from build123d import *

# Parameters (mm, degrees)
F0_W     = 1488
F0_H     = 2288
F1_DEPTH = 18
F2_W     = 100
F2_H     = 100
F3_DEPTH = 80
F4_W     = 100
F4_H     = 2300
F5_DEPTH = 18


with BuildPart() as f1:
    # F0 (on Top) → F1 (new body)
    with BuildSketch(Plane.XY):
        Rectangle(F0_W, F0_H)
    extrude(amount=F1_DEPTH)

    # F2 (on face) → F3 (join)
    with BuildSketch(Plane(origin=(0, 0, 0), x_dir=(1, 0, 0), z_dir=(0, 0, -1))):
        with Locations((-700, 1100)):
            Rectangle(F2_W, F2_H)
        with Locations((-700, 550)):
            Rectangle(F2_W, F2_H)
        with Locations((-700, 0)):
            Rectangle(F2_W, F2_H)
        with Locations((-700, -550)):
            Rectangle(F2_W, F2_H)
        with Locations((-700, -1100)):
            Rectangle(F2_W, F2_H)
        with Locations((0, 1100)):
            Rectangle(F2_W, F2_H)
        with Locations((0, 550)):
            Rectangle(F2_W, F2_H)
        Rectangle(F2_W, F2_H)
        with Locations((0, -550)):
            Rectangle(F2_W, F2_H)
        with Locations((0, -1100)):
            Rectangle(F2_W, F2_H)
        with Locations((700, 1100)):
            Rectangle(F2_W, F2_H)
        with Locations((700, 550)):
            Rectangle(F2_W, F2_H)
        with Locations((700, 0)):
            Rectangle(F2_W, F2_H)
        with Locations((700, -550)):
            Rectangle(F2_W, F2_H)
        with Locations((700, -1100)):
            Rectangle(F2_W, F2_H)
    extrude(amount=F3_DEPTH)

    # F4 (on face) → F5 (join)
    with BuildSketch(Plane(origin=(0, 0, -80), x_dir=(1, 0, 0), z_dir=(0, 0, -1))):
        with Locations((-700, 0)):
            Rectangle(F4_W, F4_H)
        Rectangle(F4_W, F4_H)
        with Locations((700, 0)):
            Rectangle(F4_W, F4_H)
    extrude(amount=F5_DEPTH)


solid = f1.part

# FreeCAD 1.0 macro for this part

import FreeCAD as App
import Part
import Sketcher


def add_polygon(sketch, points):
    """Adds a closed chain of lines whose ends are joined by coincident constraints."""
    first, n = sketch.GeometryCount, len(points)
    for a, b in zip(points, points[1:] + points[:1]):
        sketch.addGeometry(Part.LineSegment(App.Vector(*a, 0), App.Vector(*b, 0)), False)
    for i in range(n):
        sketch.addConstraint(Sketcher.Constraint("Coincident", first + i, 2, first + (i + 1) % n, 1))

doc = App.newDocument("Part")
body = doc.addObject("PartDesign::Body", "Body")

# Sketch on XY plane
sketch1 = body.newObject("Sketcher::SketchObject", "Sketch")
sketch1.AttachmentSupport = (doc.getObject("XY_Plane"), [""])
sketch1.MapMode = "FlatFace"
add_polygon(sketch1, [(-744, 1144), (-744, -1144), (744, -1144), (744, 1144)])  # lines 0-3
sketch1.addConstraint(Sketcher.Constraint("Vertical", 0))
sketch1.addConstraint(Sketcher.Constraint("Horizontal", 1))
sketch1.addConstraint(Sketcher.Constraint("Vertical", 2))
sketch1.addConstraint(Sketcher.Constraint("Horizontal", 3))
sketch1.addConstraint(Sketcher.Constraint("Symmetric", 0, 2, 2, 2, -1, 1))
sketch1.addConstraint(Sketcher.Constraint("DistanceX", 1, 1, 1, 2, 1488.0))
sketch1.addConstraint(Sketcher.Constraint("DistanceY", 0, 2, 0, 1, 2288.0))
pad1 = body.newObject("PartDesign::Pad", "Pad")
pad1.Profile = sketch1
pad1.Length = 18

# Sketch on XY plane
sketch2 = body.newObject("Sketcher::SketchObject", "Sketch001")
sketch2.AttachmentSupport = (doc.getObject("XY_Plane"), [""])
sketch2.MapMode = "FlatFace"
add_polygon(sketch2, [(-750, -1150), (-750, -1050), (-650, -1050), (-650, -1150)])  # lines 0-3
add_polygon(sketch2, [(-750, -600), (-750, -500), (-650, -500), (-650, -600)])  # lines 4-7
add_polygon(sketch2, [(-750, -50), (-750, 50), (-650, 50), (-650, -50)])  # lines 8-11
add_polygon(sketch2, [(-750, 500), (-750, 600), (-650, 600), (-650, 500)])  # lines 12-15
add_polygon(sketch2, [(-750, 1050), (-750, 1150), (-650, 1150), (-650, 1050)])  # lines 16-19
add_polygon(sketch2, [(-50, -1150), (-50, -1050), (50, -1050), (50, -1150)])  # lines 20-23
add_polygon(sketch2, [(-50, -600), (-50, -500), (50, -500), (50, -600)])  # lines 24-27
add_polygon(sketch2, [(-50, -50), (-50, 50), (50, 50), (50, -50)])  # lines 28-31
add_polygon(sketch2, [(-50, 500), (-50, 600), (50, 600), (50, 500)])  # lines 32-35
add_polygon(sketch2, [(-50, 1050), (-50, 1150), (50, 1150), (50, 1050)])  # lines 36-39
add_polygon(sketch2, [(650, -1150), (650, -1050), (750, -1050), (750, -1150)])  # lines 40-43
add_polygon(sketch2, [(650, -600), (650, -500), (750, -500), (750, -600)])  # lines 44-47
add_polygon(sketch2, [(650, -50), (650, 50), (750, 50), (750, -50)])  # lines 48-51
add_polygon(sketch2, [(650, 500), (650, 600), (750, 600), (750, 500)])  # lines 52-55
add_polygon(sketch2, [(650, 1050), (650, 1150), (750, 1150), (750, 1050)])  # lines 56-59
sketch2.addConstraint(Sketcher.Constraint("Vertical", 0))
sketch2.addConstraint(Sketcher.Constraint("Horizontal", 1))
sketch2.addConstraint(Sketcher.Constraint("Vertical", 2))
sketch2.addConstraint(Sketcher.Constraint("Horizontal", 3))
sketch2.addConstraint(Sketcher.Constraint("Vertical", 4))
sketch2.addConstraint(Sketcher.Constraint("Horizontal", 5))
sketch2.addConstraint(Sketcher.Constraint("Vertical", 6))
sketch2.addConstraint(Sketcher.Constraint("Horizontal", 7))
sketch2.addConstraint(Sketcher.Constraint("Vertical", 8))
sketch2.addConstraint(Sketcher.Constraint("Horizontal", 9))
sketch2.addConstraint(Sketcher.Constraint("Vertical", 10))
sketch2.addConstraint(Sketcher.Constraint("Horizontal", 11))
sketch2.addConstraint(Sketcher.Constraint("Vertical", 12))
sketch2.addConstraint(Sketcher.Constraint("Horizontal", 13))
sketch2.addConstraint(Sketcher.Constraint("Vertical", 14))
sketch2.addConstraint(Sketcher.Constraint("Horizontal", 15))
sketch2.addConstraint(Sketcher.Constraint("Vertical", 16))
sketch2.addConstraint(Sketcher.Constraint("Horizontal", 17))
sketch2.addConstraint(Sketcher.Constraint("Vertical", 18))
sketch2.addConstraint(Sketcher.Constraint("Horizontal", 19))
sketch2.addConstraint(Sketcher.Constraint("Vertical", 20))
sketch2.addConstraint(Sketcher.Constraint("Horizontal", 21))
sketch2.addConstraint(Sketcher.Constraint("Vertical", 22))
sketch2.addConstraint(Sketcher.Constraint("Horizontal", 23))
sketch2.addConstraint(Sketcher.Constraint("Vertical", 24))
sketch2.addConstraint(Sketcher.Constraint("Horizontal", 25))
sketch2.addConstraint(Sketcher.Constraint("Vertical", 26))
sketch2.addConstraint(Sketcher.Constraint("Horizontal", 27))
sketch2.addConstraint(Sketcher.Constraint("Vertical", 28))
sketch2.addConstraint(Sketcher.Constraint("Horizontal", 29))
sketch2.addConstraint(Sketcher.Constraint("Vertical", 30))
sketch2.addConstraint(Sketcher.Constraint("Horizontal", 31))
sketch2.addConstraint(Sketcher.Constraint("Vertical", 32))
sketch2.addConstraint(Sketcher.Constraint("Horizontal", 33))
sketch2.addConstraint(Sketcher.Constraint("Vertical", 34))
sketch2.addConstraint(Sketcher.Constraint("Horizontal", 35))
sketch2.addConstraint(Sketcher.Constraint("Vertical", 36))
sketch2.addConstraint(Sketcher.Constraint("Horizontal", 37))
sketch2.addConstraint(Sketcher.Constraint("Vertical", 38))
sketch2.addConstraint(Sketcher.Constraint("Horizontal", 39))
sketch2.addConstraint(Sketcher.Constraint("Vertical", 40))
sketch2.addConstraint(Sketcher.Constraint("Horizontal", 41))
sketch2.addConstraint(Sketcher.Constraint("Vertical", 42))
sketch2.addConstraint(Sketcher.Constraint("Horizontal", 43))
sketch2.addConstraint(Sketcher.Constraint("Vertical", 44))
sketch2.addConstraint(Sketcher.Constraint("Horizontal", 45))
sketch2.addConstraint(Sketcher.Constraint("Vertical", 46))
sketch2.addConstraint(Sketcher.Constraint("Horizontal", 47))
sketch2.addConstraint(Sketcher.Constraint("Vertical", 48))
sketch2.addConstraint(Sketcher.Constraint("Horizontal", 49))
sketch2.addConstraint(Sketcher.Constraint("Vertical", 50))
sketch2.addConstraint(Sketcher.Constraint("Horizontal", 51))
sketch2.addConstraint(Sketcher.Constraint("Vertical", 52))
sketch2.addConstraint(Sketcher.Constraint("Horizontal", 53))
sketch2.addConstraint(Sketcher.Constraint("Vertical", 54))
sketch2.addConstraint(Sketcher.Constraint("Horizontal", 55))
sketch2.addConstraint(Sketcher.Constraint("Vertical", 56))
sketch2.addConstraint(Sketcher.Constraint("Horizontal", 57))
sketch2.addConstraint(Sketcher.Constraint("Vertical", 58))
sketch2.addConstraint(Sketcher.Constraint("Horizontal", 59))
sketch2.addConstraint(Sketcher.Constraint("Symmetric", 28, 2, 30, 2, -1, 1))
sketch2.addConstraint(Sketcher.Constraint("Symmetric", 26, 2, 32, 2, -1, 1))
sketch2.addConstraint(Sketcher.Constraint("Symmetric", 24, 2, 34, 2, -1, 1))
sketch2.addConstraint(Sketcher.Constraint("Symmetric", 22, 2, 36, 2, -1, 1))
sketch2.addConstraint(Sketcher.Constraint("Symmetric", 20, 2, 38, 2, -1, 1))
sketch2.addConstraint(Sketcher.Constraint("Symmetric", 18, 2, 40, 2, -1, 1))
sketch2.addConstraint(Sketcher.Constraint("Symmetric", 16, 2, 42, 2, -1, 1))
sketch2.addConstraint(Sketcher.Constraint("Symmetric", 14, 2, 44, 2, -1, 1))
sketch2.addConstraint(Sketcher.Constraint("Symmetric", 12, 2, 46, 2, -1, 1))
sketch2.addConstraint(Sketcher.Constraint("Symmetric", 10, 2, 48, 2, -1, 1))
sketch2.addConstraint(Sketcher.Constraint("Symmetric", 8, 2, 50, 2, -1, 1))
sketch2.addConstraint(Sketcher.Constraint("Symmetric", 6, 2, 52, 2, -1, 1))
sketch2.addConstraint(Sketcher.Constraint("Symmetric", 4, 2, 54, 2, -1, 1))
sketch2.addConstraint(Sketcher.Constraint("Symmetric", 2, 2, 56, 2, -1, 1))
sketch2.addConstraint(Sketcher.Constraint("Symmetric", 0, 2, 58, 2, -1, 1))
sketch2.addConstraint(Sketcher.Constraint("Symmetric", 1, 2, 40, 2, -2))
sketch2.addConstraint(Sketcher.Constraint("Symmetric", 3, 2, 42, 2, -2))
sketch2.addConstraint(Sketcher.Constraint("Symmetric", 5, 2, 44, 2, -2))
sketch2.addConstraint(Sketcher.Constraint("Symmetric", 7, 2, 46, 2, -2))
sketch2.addConstraint(Sketcher.Constraint("Horizontal", 1, 2, 20, 2))
sketch2.addConstraint(Sketcher.Constraint("Horizontal", 3, 2, 22, 2))
sketch2.addConstraint(Sketcher.Constraint("Horizontal", 5, 2, 24, 2))
sketch2.addConstraint(Sketcher.Constraint("Horizontal", 7, 2, 26, 2))
sketch2.addConstraint(Sketcher.Constraint("Horizontal", 9, 2, 28, 2))
sketch2.addConstraint(Sketcher.Constraint("Horizontal", 11, 2, 30, 2))
sketch2.addConstraint(Sketcher.Constraint("Vertical", 3, 2, 4, 2))
sketch2.addConstraint(Sketcher.Constraint("Vertical", 2, 2, 5, 2))
sketch2.addConstraint(Sketcher.Constraint("Vertical", 7, 2, 8, 2))
sketch2.addConstraint(Sketcher.Constraint("Vertical", 6, 2, 9, 2))
sketch2.addConstraint(Sketcher.Constraint("Vertical", 23, 2, 24, 2))
sketch2.addConstraint(Sketcher.Constraint("Vertical", 22, 2, 25, 2))
sketch2.addConstraint(Sketcher.Constraint("Vertical", 27, 2, 28, 2))
sketch2.addConstraint(Sketcher.Constraint("Vertical", 26, 2, 29, 2))
sketch2.addConstraint(Sketcher.Constraint("Equal", 19, 21))
sketch2.addConstraint(Sketcher.Constraint("Equal", 59, 0))
sketch2.addConstraint(Sketcher.Constraint("Equal", 2, 4))
sketch2.addConstraint(Sketcher.Constraint("Equal", 6, 8))
sketch2.addConstraint(Sketcher.Constraint("DistanceX", 1, 1, 1, 2, 100.0))
sketch2.addConstraint(Sketcher.Constraint("DistanceX", 0, 2, -1, 1, 750.0))
sketch2.addConstraint(Sketcher.Constraint("DistanceY", 0, 2, -1, 1, 1050.0))
sketch2.addConstraint(Sketcher.Constraint("DistanceY", 4, 2, -1, 1, 500.0))
pad2 = body.newObject("PartDesign::Pad", "Pad001")
pad2.Profile = sketch2
pad2.Length = 80
pad2.Reversed = True

# Sketch on XY plane
sketch3 = body.newObject("Sketcher::SketchObject", "Sketch002")
sketch3.AttachmentSupport = (doc.getObject("XY_Plane"), [""])
sketch3.MapMode = "FlatFace"
sketch3.AttachmentOffset = App.Placement(App.Vector(0, 0, -80), App.Rotation())
add_polygon(sketch3, [(-750, -1150), (-750, 1150), (-650, 1150), (-650, -1150)])  # lines 0-3
add_polygon(sketch3, [(-50, -1150), (-50, 1150), (50, 1150), (50, -1150)])  # lines 4-7
add_polygon(sketch3, [(650, -1150), (650, 1150), (750, 1150), (750, -1150)])  # lines 8-11
sketch3.addConstraint(Sketcher.Constraint("Vertical", 0))
sketch3.addConstraint(Sketcher.Constraint("Horizontal", 1))
sketch3.addConstraint(Sketcher.Constraint("Vertical", 2))
sketch3.addConstraint(Sketcher.Constraint("Horizontal", 3))
sketch3.addConstraint(Sketcher.Constraint("Vertical", 4))
sketch3.addConstraint(Sketcher.Constraint("Horizontal", 5))
sketch3.addConstraint(Sketcher.Constraint("Vertical", 6))
sketch3.addConstraint(Sketcher.Constraint("Horizontal", 7))
sketch3.addConstraint(Sketcher.Constraint("Vertical", 8))
sketch3.addConstraint(Sketcher.Constraint("Horizontal", 9))
sketch3.addConstraint(Sketcher.Constraint("Vertical", 10))
sketch3.addConstraint(Sketcher.Constraint("Horizontal", 11))
sketch3.addConstraint(Sketcher.Constraint("Symmetric", 4, 2, 6, 2, -1, 1))
sketch3.addConstraint(Sketcher.Constraint("Symmetric", 2, 2, 8, 2, -1, 1))
sketch3.addConstraint(Sketcher.Constraint("Symmetric", 0, 2, 10, 2, -1, 1))
sketch3.addConstraint(Sketcher.Constraint("Horizontal", 1, 2, 4, 2))
sketch3.addConstraint(Sketcher.Constraint("Horizontal", 3, 2, 6, 2))
sketch3.addConstraint(Sketcher.Constraint("Equal", 3, 5))
sketch3.addConstraint(Sketcher.Constraint("DistanceX", 1, 1, 1, 2, 100.0))
sketch3.addConstraint(Sketcher.Constraint("DistanceY", 0, 1, 0, 2, 2300.0))
sketch3.addConstraint(Sketcher.Constraint("DistanceX", 0, 2, -1, 1, 750.0))
pad3 = body.newObject("PartDesign::Pad", "Pad002")
pad3.Profile = sketch3
pad3.Length = 18
pad3.Reversed = True

doc.recompute()
